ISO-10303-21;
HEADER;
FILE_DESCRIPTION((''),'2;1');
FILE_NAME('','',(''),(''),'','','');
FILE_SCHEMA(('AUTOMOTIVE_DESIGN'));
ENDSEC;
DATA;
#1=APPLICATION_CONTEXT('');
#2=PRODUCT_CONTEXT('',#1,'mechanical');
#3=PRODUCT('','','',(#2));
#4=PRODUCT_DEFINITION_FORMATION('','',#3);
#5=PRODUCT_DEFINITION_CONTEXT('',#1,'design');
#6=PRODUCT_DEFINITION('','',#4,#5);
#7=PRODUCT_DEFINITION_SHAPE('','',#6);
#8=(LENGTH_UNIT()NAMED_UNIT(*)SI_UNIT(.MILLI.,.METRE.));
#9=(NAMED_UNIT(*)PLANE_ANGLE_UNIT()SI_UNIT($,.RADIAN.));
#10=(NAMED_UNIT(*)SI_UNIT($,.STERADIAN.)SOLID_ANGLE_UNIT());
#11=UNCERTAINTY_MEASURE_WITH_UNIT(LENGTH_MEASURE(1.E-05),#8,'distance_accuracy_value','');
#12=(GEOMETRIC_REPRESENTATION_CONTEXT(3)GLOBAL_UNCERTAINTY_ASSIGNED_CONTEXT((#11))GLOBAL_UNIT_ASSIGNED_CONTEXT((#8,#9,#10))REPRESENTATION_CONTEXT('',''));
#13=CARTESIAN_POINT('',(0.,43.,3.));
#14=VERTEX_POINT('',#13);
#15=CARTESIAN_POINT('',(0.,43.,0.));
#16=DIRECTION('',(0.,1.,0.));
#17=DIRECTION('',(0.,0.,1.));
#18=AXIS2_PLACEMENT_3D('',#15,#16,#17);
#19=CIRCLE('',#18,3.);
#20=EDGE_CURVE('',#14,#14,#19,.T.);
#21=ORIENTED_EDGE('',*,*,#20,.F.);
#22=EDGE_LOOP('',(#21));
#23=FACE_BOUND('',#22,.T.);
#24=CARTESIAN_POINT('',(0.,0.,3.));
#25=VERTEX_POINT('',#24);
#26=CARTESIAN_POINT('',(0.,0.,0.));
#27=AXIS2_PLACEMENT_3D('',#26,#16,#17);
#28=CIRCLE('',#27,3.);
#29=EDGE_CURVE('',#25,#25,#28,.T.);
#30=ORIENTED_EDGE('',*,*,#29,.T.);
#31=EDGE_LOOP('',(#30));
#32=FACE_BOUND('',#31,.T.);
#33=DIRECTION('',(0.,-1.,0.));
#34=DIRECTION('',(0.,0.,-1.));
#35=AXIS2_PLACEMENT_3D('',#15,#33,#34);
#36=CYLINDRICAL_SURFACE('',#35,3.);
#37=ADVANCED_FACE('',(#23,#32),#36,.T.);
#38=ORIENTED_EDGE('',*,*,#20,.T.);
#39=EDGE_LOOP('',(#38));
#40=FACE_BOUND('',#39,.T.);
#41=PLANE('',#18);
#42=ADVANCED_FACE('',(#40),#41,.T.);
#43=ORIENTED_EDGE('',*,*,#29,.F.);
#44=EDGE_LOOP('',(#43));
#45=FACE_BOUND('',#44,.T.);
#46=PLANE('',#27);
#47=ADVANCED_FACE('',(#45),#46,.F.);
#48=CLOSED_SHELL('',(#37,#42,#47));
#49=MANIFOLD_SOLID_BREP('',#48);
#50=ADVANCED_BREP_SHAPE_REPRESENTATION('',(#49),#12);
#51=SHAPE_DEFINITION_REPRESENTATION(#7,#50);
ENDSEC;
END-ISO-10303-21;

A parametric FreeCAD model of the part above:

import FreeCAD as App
import Part
import Sketcher

V = App.Vector
Q = App.Units.Quantity

doc = App.newDocument("Part")
params = doc.addObject("Spreadsheet::Sheet", "Params")
for row, (alias, value) in enumerate([
    ("sketch1_diameter", "6 mm"),
    ("pad1_length", "43 mm"),
], start=1):
    params.set(f"A{row}", alias)
    params.set(f"B{row}", "=" + value)
    params.setAlias(f"B{row}", alias)

body = doc.addObject("PartDesign::Body", "Body")

# Sketch on XZ plane
sketch1 = body.newObject("Sketcher::SketchObject", "Sketch")
sketch1.AttachmentSupport = (doc.getObject("XZ_Plane"), [""])
sketch1.MapMode = "FlatFace"
sketch1.addGeometry(Part.Circle(V(0, 0, 0), V(0, 0, 1), 3), False)
sketch1.addConstraint([
    Sketcher.Constraint("Coincident", 0, 3, -1, 1),
    Sketcher.Constraint("Diameter", 0, Q("6 mm")),
])
sketch1.setExpression("Constraints[1]", "Params.sketch1_diameter")
pad1 = body.newObject("PartDesign::Pad", "Pad")
pad1.Profile = sketch1
pad1.setExpression("Length", "Params.pad1_length")
pad1.Reversed = True

doc.recompute()
